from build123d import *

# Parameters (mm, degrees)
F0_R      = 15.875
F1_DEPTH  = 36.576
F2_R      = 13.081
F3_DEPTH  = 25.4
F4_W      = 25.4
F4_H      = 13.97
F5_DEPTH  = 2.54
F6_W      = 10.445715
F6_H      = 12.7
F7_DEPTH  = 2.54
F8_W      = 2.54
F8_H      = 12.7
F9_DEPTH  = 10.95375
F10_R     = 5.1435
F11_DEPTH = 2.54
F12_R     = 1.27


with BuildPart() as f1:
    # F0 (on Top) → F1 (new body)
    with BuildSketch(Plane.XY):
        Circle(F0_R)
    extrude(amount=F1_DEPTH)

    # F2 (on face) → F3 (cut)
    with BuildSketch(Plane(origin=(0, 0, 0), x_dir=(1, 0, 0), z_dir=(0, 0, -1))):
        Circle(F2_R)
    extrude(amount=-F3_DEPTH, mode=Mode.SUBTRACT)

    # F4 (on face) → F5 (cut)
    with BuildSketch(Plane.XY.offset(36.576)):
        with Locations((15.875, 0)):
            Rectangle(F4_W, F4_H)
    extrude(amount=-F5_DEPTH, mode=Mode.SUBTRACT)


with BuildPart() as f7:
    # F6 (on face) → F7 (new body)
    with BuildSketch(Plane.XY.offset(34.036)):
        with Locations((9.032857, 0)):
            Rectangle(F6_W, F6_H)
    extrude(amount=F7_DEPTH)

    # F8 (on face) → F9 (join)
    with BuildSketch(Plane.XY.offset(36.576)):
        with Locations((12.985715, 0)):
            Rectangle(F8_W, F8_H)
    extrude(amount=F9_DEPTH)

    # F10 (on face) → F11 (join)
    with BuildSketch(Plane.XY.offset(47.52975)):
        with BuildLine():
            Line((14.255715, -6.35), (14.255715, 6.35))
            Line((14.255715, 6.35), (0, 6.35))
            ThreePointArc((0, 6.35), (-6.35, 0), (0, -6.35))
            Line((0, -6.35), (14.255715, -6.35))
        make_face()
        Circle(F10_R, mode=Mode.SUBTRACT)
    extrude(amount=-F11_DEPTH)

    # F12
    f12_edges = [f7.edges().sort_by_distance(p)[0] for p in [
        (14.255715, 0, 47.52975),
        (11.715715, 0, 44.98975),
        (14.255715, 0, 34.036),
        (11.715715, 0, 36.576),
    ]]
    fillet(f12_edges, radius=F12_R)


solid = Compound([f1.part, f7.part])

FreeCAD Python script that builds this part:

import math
import FreeCAD as App
import Part
import Sketcher
from FreeCAD import Vector
Q = App.Units.Quantity


def edges_at(feature, points):
    """Names of the edges that pass closest to the given points."""
    edges = feature.Shape.Edges
    near = lambda p: min(range(len(edges)), key=lambda i: edges[i].distToShape(Part.Vertex(*p))[0])
    return sorted({f"Edge{near(p) + 1}" for p in points})


def add_polygon(sketch, points):
    """Adds a closed chain of lines whose ends are joined by coincident constraints."""
    first, n = sketch.GeometryCount, len(points)
    for a, b in zip(points, points[1:] + points[:1]):
        sketch.addGeometry(Part.LineSegment(App.Vector(*a, 0), App.Vector(*b, 0)), False)
    for i in range(n):
        sketch.addConstraint(Sketcher.Constraint("Coincident", first + i, 2, first + (i + 1) % n, 1))

doc = App.newDocument("Part")
body = doc.addObject("PartDesign::Body", "Body")

sketch1 = body.newObject("Sketcher::SketchObject", "Sketch")
sketch1.AttachmentSupport = (doc.getObject("XY_Plane"), [""])
sketch1.MapMode = "FlatFace"
sketch1.addGeometry(Part.Circle(Vector(0, 0, 0), Vector(0, 0, 1), 15.875), False)
sketch1.addConstraint([
    Sketcher.Constraint("Coincident", 0, 3, -1, 1),
    Sketcher.Constraint("Diameter", 0, Q("1.25 in")),
])
pad1 = body.newObject("PartDesign::Pad", "Pad")
pad1.Profile = sketch1
pad1.Length = Q("1.44 in")

sketch2 = body.newObject("Sketcher::SketchObject", "Sketch001")
sketch2.AttachmentSupport = (doc.getObject("XY_Plane"), [""])
sketch2.MapMode = "FlatFace"
sketch2.addGeometry(Part.Circle(Vector(0, 0, 0), Vector(0, 0, 1), 13.081), False)
sketch2.addConstraint([
    Sketcher.Constraint("Coincident", 0, 3, -1, 1),
    Sketcher.Constraint("Diameter", 0, Q("1.03 in")),
])
pocket1 = body.newObject("PartDesign::Pocket", "Pocket")
pocket1.Profile = sketch2
pocket1.Length = Q("1 in")
pocket1.Reversed = True

sketch3 = body.newObject("Sketcher::SketchObject", "Sketch002")
sketch3.AttachmentSupport = (doc.getObject("XY_Plane"), [""])
sketch3.MapMode = "FlatFace"
sketch3.AttachmentOffset = App.Placement(Vector(0, 0, 1.44 * 25.4), App.Rotation())
add_polygon(sketch3, [(3.175, 6.985), (3.175, -6.985), (28.575, -6.985), (28.575, 6.985)])
sketch3.addConstraint([
    Sketcher.Constraint("Vertical", 0),
    Sketcher.Constraint("Horizontal", 1),
    Sketcher.Constraint("Vertical", 2),
    Sketcher.Constraint("Horizontal", 3),
    Sketcher.Constraint("DistanceX", 1, 1, 1, 2, Q("1 in")),
    Sketcher.Constraint("DistanceY", 0, 2, 0, 1, Q("0.55 in")),
    Sketcher.Constraint("DistanceX", -1, 1, 0, 2, Q("0.125 in")),
    Sketcher.Constraint("DistanceY", 0, 2, -1, 1, Q("0.275 in")),
])
pocket2 = body.newObject("PartDesign::Pocket", "Pocket001")
pocket2.Profile = sketch3
pocket2.Length = Q("0.1 in")
body2 = doc.addObject("PartDesign::Body", "Body001")

sketch4 = body2.newObject("Sketcher::SketchObject", "Sketch003")
sketch4.AttachmentSupport = (doc.getObject("XY_Plane001"), [""])
sketch4.MapMode = "FlatFace"
sketch4.AttachmentOffset = App.Placement(Vector(0, 0, 1.34 * 25.4), App.Rotation())
add_polygon(sketch4, [(3.809999, 6.35), (3.809999, -6.35), (14.255714, -6.35), (14.255714, 6.35)])
sketch4.addConstraint([
    Sketcher.Constraint("Vertical", 0),
    Sketcher.Constraint("Horizontal", 1),
    Sketcher.Constraint("Vertical", 2),
    Sketcher.Constraint("Horizontal", 3),
    Sketcher.Constraint("DistanceY", 0, 2, 0, 1, Q("0.5 in")),
    Sketcher.Constraint("DistanceX", -1, 1, 0, 2, Q("0.15 in")),
    Sketcher.Constraint("DistanceY", 0, 2, -1, 1, Q("0.25 in")),
    Sketcher.Constraint("DistanceX", 1, 1, 1, 2, Q("10.445715 mm")),
])
pad2 = body2.newObject("PartDesign::Pad", "Pad001")
pad2.Profile = sketch4
pad2.Length = Q("0.1 in")

sketch5 = body2.newObject("Sketcher::SketchObject", "Sketch004")
sketch5.AttachmentSupport = (doc.getObject("XY_Plane001"), [""])
sketch5.MapMode = "FlatFace"
sketch5.AttachmentOffset = App.Placement(Vector(0, 0, 1.44 * 25.4), App.Rotation())
add_polygon(sketch5, [(11.715715, 6.35), (11.715715, -6.35), (14.255715, -6.35), (14.255715, 6.35)])
sketch5.addConstraint([
    Sketcher.Constraint("Vertical", 0),
    Sketcher.Constraint("Horizontal", 1),
    Sketcher.Constraint("Vertical", 2),
    Sketcher.Constraint("Horizontal", 3),
    Sketcher.Constraint("DistanceX", 1, 1, 1, 2, Q("0.1 in")),
    Sketcher.Constraint("DistanceY", 0, 2, 0, 1, Q("0.5 in")),
    Sketcher.Constraint("DistanceY", 0, 2, -1, 1, Q("0.25 in")),
    Sketcher.Constraint("DistanceX", -1, 1, 0, 2, Q("11.715715 mm")),
])
pad3 = body2.newObject("PartDesign::Pad", "Pad002")
pad3.Profile = sketch5
pad3.Length = 10.95375

sketch6 = body2.newObject("Sketcher::SketchObject", "Sketch005")
sketch6.AttachmentSupport = (doc.getObject("XY_Plane001"), [""])
sketch6.MapMode = "FlatFace"
sketch6.AttachmentOffset = App.Placement(Vector(0, 0, 47.52975), App.Rotation())
sketch6.addGeometry([
    Part.LineSegment(Vector(14.255715, -6.35, 0), Vector(14.255715, 6.35, 0)),
    Part.LineSegment(Vector(14.255715, 6.35, 0), Vector(0, 6.35, 0)),
    Part.ArcOfCircle(Part.Circle(Vector(0, 0, 0), Vector(0, 0, 1), 6.35), math.radians(90), math.radians(270)),
    Part.LineSegment(Vector(0, -6.35, 0), Vector(14.255715, -6.35, 0)),
    Part.Circle(Vector(0, 0, 0), Vector(0, 0, 1), 5.1435),
], False)
sketch6.addConstraint([
    Sketcher.Constraint("Coincident", 0, 2, 1, 1),
    Sketcher.Constraint("Tangent", 1, 2, 2, 1),
    Sketcher.Constraint("Tangent", 2, 2, 3, 1),
    Sketcher.Constraint("Coincident", 3, 2, 0, 1),
    Sketcher.Constraint("Vertical", 0),
    Sketcher.Constraint("Horizontal", 1),
    Sketcher.Constraint("Horizontal", 3),
    Sketcher.Constraint("Coincident", 2, 3, -1, 1),
    Sketcher.Constraint("Coincident", 4, 3, -1, 1),
    Sketcher.Constraint("Radius", 2, Q("0.25 in")),
    Sketcher.Constraint("Diameter", 4, Q("0.405 in")),
    Sketcher.Constraint("DistanceX", 1, 2, 1, 1, Q("14.255715 mm")),
])
pad4 = body2.newObject("PartDesign::Pad", "Pad003")
pad4.Profile = sketch6
pad4.Length = Q("0.1 in")
pad4.Reversed = True
doc.recompute()

fillet = body2.newObject("PartDesign::Fillet", "Fillet")
fillet.Base = (pad4, edges_at(pad4, [
    (14.256, 0, 47.53),
    (11.716, 0, 44.99),
    (14.256, 0, 34.036),
    (11.716, 0, 36.576),
]))
fillet.Radius = Q("0.05 in")

doc.recompute()
